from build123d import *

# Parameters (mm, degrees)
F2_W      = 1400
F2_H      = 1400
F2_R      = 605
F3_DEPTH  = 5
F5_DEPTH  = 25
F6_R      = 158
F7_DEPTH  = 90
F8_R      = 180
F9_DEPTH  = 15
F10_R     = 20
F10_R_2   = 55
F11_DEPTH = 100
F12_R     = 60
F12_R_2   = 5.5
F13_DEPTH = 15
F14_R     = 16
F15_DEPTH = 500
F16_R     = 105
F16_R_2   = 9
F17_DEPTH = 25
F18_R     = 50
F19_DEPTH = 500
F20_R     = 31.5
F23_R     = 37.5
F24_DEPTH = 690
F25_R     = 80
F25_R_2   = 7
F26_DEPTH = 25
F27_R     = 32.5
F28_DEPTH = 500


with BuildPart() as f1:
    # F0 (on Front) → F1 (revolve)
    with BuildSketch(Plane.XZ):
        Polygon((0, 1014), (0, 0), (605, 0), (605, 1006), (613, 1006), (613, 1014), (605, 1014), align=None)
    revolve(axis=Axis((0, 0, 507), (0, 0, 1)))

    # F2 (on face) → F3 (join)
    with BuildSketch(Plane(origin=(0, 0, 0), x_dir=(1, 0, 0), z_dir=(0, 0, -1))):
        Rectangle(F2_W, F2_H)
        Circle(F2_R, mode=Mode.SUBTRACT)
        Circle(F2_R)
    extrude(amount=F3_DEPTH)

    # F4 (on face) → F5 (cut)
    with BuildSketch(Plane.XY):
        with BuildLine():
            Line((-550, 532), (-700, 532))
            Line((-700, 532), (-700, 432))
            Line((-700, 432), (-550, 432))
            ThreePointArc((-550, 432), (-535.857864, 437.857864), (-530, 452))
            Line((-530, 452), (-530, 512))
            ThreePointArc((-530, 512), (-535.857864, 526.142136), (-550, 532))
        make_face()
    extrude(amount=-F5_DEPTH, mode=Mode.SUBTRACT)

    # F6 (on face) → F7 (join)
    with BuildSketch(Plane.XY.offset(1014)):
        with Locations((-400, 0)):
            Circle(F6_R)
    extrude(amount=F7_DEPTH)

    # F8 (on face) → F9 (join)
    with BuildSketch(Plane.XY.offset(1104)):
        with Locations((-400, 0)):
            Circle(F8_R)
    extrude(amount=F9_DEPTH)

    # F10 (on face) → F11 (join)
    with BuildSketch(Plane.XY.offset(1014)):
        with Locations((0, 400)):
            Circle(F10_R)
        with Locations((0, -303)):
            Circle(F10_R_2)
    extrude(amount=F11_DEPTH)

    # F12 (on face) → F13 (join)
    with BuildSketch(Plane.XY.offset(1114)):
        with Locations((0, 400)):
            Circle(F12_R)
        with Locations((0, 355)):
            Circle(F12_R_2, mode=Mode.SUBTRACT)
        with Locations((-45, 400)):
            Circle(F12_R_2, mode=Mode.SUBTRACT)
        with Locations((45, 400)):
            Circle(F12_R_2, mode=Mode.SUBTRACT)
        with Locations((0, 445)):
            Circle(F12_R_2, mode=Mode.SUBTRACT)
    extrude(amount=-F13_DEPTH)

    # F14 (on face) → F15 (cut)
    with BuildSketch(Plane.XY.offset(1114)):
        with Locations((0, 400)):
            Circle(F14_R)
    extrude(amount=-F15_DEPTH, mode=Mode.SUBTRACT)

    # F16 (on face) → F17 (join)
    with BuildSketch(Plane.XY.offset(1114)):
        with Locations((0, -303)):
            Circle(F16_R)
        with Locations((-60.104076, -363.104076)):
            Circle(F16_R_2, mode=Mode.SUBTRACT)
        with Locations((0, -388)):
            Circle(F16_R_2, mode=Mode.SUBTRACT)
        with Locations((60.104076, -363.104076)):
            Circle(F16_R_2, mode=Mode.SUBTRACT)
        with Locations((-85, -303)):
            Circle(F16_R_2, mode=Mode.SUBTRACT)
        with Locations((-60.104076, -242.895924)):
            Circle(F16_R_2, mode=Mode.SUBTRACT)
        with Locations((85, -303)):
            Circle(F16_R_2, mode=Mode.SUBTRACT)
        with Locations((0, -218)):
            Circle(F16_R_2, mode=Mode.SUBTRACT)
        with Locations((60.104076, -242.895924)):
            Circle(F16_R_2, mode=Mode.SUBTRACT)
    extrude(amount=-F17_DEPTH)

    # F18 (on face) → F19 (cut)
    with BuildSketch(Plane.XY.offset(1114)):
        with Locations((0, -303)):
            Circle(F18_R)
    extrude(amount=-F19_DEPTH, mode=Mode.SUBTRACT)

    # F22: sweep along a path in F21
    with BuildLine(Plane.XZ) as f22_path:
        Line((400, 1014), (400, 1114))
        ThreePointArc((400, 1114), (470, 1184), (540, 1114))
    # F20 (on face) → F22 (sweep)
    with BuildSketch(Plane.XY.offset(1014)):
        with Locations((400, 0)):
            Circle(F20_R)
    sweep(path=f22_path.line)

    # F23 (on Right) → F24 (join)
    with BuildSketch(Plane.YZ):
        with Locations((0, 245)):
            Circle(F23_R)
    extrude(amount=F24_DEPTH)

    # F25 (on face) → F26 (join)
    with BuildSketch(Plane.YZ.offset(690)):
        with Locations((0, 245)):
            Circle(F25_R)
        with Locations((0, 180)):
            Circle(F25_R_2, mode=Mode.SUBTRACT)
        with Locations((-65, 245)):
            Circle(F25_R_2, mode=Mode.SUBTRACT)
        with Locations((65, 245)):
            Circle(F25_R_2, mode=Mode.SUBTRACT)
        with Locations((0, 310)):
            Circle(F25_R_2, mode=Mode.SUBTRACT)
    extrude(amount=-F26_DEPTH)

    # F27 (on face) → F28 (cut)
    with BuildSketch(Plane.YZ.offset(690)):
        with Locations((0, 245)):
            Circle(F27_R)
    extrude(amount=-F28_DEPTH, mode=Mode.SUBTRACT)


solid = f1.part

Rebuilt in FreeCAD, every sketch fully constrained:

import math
import FreeCAD as App
import Part
import Sketcher

doc = App.newDocument("Part")
body = doc.addObject("PartDesign::Body", "Body")

sketch1 = body.newObject("Sketcher::SketchObject", "Sketch")
sketch1.AttachmentSupport = (doc.getObject("XZ_Plane"), [""])
sketch1.MapMode = "FlatFace"
sketch1.addGeometry([
    Part.LineSegment(App.Vector(0, 1014, 0), App.Vector(0, 0, 0)),
    Part.LineSegment(App.Vector(0, 0, 0), App.Vector(605, 0, 0)),
    Part.LineSegment(App.Vector(605, 0, 0), App.Vector(605, 1006, 0)),
    Part.LineSegment(App.Vector(605, 1006, 0), App.Vector(613, 1006, 0)),
    Part.LineSegment(App.Vector(613, 1006, 0), App.Vector(613, 1014, 0)),
    Part.LineSegment(App.Vector(613, 1014, 0), App.Vector(0, 1014, 0)),
], False)
sketch1.addConstraint([
    Sketcher.Constraint("Coincident", 0, 2, 1, 1),
    Sketcher.Constraint("Coincident", 1, 2, 2, 1),
    Sketcher.Constraint("Coincident", 2, 2, 3, 1),
    Sketcher.Constraint("Coincident", 3, 2, 4, 1),
    Sketcher.Constraint("Coincident", 4, 2, 5, 1),
    Sketcher.Constraint("Coincident", 5, 2, 0, 1),
    Sketcher.Constraint("Vertical", 0),
    Sketcher.Constraint("Horizontal", 1),
    Sketcher.Constraint("Vertical", 2),
    Sketcher.Constraint("Horizontal", 3),
    Sketcher.Constraint("Vertical", 4),
    Sketcher.Constraint("Horizontal", 5),
    Sketcher.Constraint("Coincident", 0, 2, -1, 1),
    Sketcher.Constraint("Equal", 3, 4),
    Sketcher.Constraint("DistanceX", 1, 1, 1, 2, 605.0),
    Sketcher.Constraint("DistanceX", 3, 1, 3, 2, 8.0),
    Sketcher.Constraint("DistanceY", 0, 2, 0, 1, 1014.0),
])
revolution = body.newObject("PartDesign::Revolution", "Revolution")
revolution.Profile = sketch1
revolution.ReferenceAxis = (sketch1, ["V_Axis"])
revolution.Angle = 360

sketch2 = body.newObject("Sketcher::SketchObject", "Sketch001")
sketch2.AttachmentSupport = (doc.getObject("XY_Plane"), [""])
sketch2.MapMode = "FlatFace"
sketch2.addGeometry([
    Part.LineSegment(App.Vector(-700, -700, 0), App.Vector(-700, 700, 0)),
    Part.LineSegment(App.Vector(-700, 700, 0), App.Vector(700, 700, 0)),
    Part.LineSegment(App.Vector(700, 700, 0), App.Vector(700, -700, 0)),
    Part.LineSegment(App.Vector(700, -700, 0), App.Vector(-700, -700, 0)),
], False)
sketch2.addConstraint([
    Sketcher.Constraint("Coincident", 0, 2, 1, 1),
    Sketcher.Constraint("Coincident", 1, 2, 2, 1),
    Sketcher.Constraint("Coincident", 2, 2, 3, 1),
    Sketcher.Constraint("Coincident", 3, 2, 0, 1),
    Sketcher.Constraint("Vertical", 0),
    Sketcher.Constraint("Horizontal", 1),
    Sketcher.Constraint("Vertical", 2),
    Sketcher.Constraint("Horizontal", 3),
    Sketcher.Constraint("Symmetric", 0, 2, 2, 2, -1, 1),
    Sketcher.Constraint("Equal", 3, 0),
    Sketcher.Constraint("DistanceX", 1, 1, 1, 2, 1400.0),
])
pad1 = body.newObject("PartDesign::Pad", "Pad")
pad1.Profile = sketch2
pad1.Length = 5
pad1.Reversed = True

sketch3 = body.newObject("Sketcher::SketchObject", "Sketch002")
sketch3.AttachmentSupport = (doc.getObject("XY_Plane"), [""])
sketch3.MapMode = "FlatFace"
sketch3.addGeometry([
    Part.LineSegment(App.Vector(-550, 532, 0), App.Vector(-700, 532, 0)),
    Part.LineSegment(App.Vector(-700, 532, 0), App.Vector(-700, 432, 0)),
    Part.LineSegment(App.Vector(-700, 432, 0), App.Vector(-550, 432, 0)),
    Part.ArcOfCircle(Part.Circle(App.Vector(-550, 452, 0), App.Vector(0, 0, 1), 20), math.radians(-90), math.radians(0)),
    Part.LineSegment(App.Vector(-530, 452, 0), App.Vector(-530, 512, 0)),
    Part.ArcOfCircle(Part.Circle(App.Vector(-550, 512, 0), App.Vector(0, 0, 1), 20), math.radians(0), math.radians(90)),
], False)
sketch3.addConstraint([
    Sketcher.Constraint("Coincident", 0, 2, 1, 1),
    Sketcher.Constraint("Coincident", 1, 2, 2, 1),
    Sketcher.Constraint("Tangent", 2, 2, 3, 1),
    Sketcher.Constraint("Tangent", 3, 2, 4, 1),
    Sketcher.Constraint("Tangent", 4, 2, 5, 1),
    Sketcher.Constraint("Tangent", 5, 2, 0, 1),
    Sketcher.Constraint("Horizontal", 0),
    Sketcher.Constraint("Vertical", 1),
    Sketcher.Constraint("Horizontal", 2),
    Sketcher.Constraint("Vertical", 4),
    Sketcher.Constraint("Equal", 3, 5),
    Sketcher.Constraint("Radius", 3, 19.999999),
    Sketcher.Constraint("DistanceX", 0, 2, 0, 1, 150.0),
    Sketcher.Constraint("DistanceY", 1, 2, 1, 1, 100.0),
    Sketcher.Constraint("DistanceX", 3, 3, -1, 1, 549.999999),
    Sketcher.Constraint("DistanceY", -1, 1, 3, 3, 451.999999),
])
pocket1 = body.newObject("PartDesign::Pocket", "Pocket")
pocket1.Profile = sketch3
pocket1.Length = 25

sketch4 = body.newObject("Sketcher::SketchObject", "Sketch003")
sketch4.AttachmentSupport = (doc.getObject("XY_Plane"), [""])
sketch4.MapMode = "FlatFace"
sketch4.AttachmentOffset = App.Placement(App.Vector(0, 0, 1014), App.Rotation())
sketch4.addGeometry(Part.Circle(App.Vector(-400, 0, 0), App.Vector(0, 0, 1), 158), False)
sketch4.addConstraint([
    Sketcher.Constraint("PointOnObject", 0, 3, -1),
    Sketcher.Constraint("Diameter", 0, 316.0),
    Sketcher.Constraint("DistanceX", 0, 3, -1, 1, 400.0),
])
pad2 = body.newObject("PartDesign::Pad", "Pad001")
pad2.Profile = sketch4
pad2.Length = 90

sketch5 = body.newObject("Sketcher::SketchObject", "Sketch004")
sketch5.AttachmentSupport = (doc.getObject("XY_Plane"), [""])
sketch5.MapMode = "FlatFace"
sketch5.AttachmentOffset = App.Placement(App.Vector(0, 0, 1104), App.Rotation())
sketch5.addGeometry(Part.Circle(App.Vector(-400, 0, 0), App.Vector(0, 0, 1), 180), False)
sketch5.addConstraint([
    Sketcher.Constraint("PointOnObject", 0, 3, -1),
    Sketcher.Constraint("Diameter", 0, 360.0),
    Sketcher.Constraint("DistanceX", 0, 3, -1, 1, 400.0),
])
pad3 = body.newObject("PartDesign::Pad", "Pad002")
pad3.Profile = sketch5
pad3.Length = 15

sketch6 = body.newObject("Sketcher::SketchObject", "Sketch005")
sketch6.AttachmentSupport = (doc.getObject("XY_Plane"), [""])
sketch6.MapMode = "FlatFace"
sketch6.AttachmentOffset = App.Placement(App.Vector(0, 0, 1014), App.Rotation())
sketch6.addGeometry([
    Part.Circle(App.Vector(0, 400, 0), App.Vector(0, 0, 1), 20),
    Part.Circle(App.Vector(0, -303, 0), App.Vector(0, 0, 1), 55),
], False)
sketch6.addConstraint([
    Sketcher.Constraint("PointOnObject", 0, 3, -2),
    Sketcher.Constraint("PointOnObject", 1, 3, -2),
    Sketcher.Constraint("Diameter", 0, 40.0),
    Sketcher.Constraint("Diameter", 1, 110.0),
    Sketcher.Constraint("DistanceY", -1, 1, 0, 3, 400.0),
    Sketcher.Constraint("DistanceY", 1, 3, -1, 1, 303.0),
])
pad4 = body.newObject("PartDesign::Pad", "Pad003")
pad4.Profile = sketch6
pad4.Length = 100

sketch7 = body.newObject("Sketcher::SketchObject", "Sketch006")
sketch7.AttachmentSupport = (doc.getObject("XY_Plane"), [""])
sketch7.MapMode = "FlatFace"
sketch7.AttachmentOffset = App.Placement(App.Vector(0, 0, 1114), App.Rotation())
sketch7.addGeometry([
    Part.Circle(App.Vector(0, 400, 0), App.Vector(0, 0, 1), 60),
    Part.Circle(App.Vector(0, 355, 0), App.Vector(0, 0, 1), 6),
    Part.Circle(App.Vector(-45, 400, 0), App.Vector(0, 0, 1), 6),
    Part.Circle(App.Vector(45, 400, 0), App.Vector(0, 0, 1), 6),
    Part.Circle(App.Vector(0, 445, 0), App.Vector(0, 0, 1), 6),
], False)
sketch7.addConstraint([
    Sketcher.Constraint("Equal", 1, 2),
    Sketcher.Constraint("Equal", 2, 3),
    Sketcher.Constraint("Equal", 3, 4),
    Sketcher.Constraint("Symmetric", 2, 3, 3, 3, -2),
    Sketcher.Constraint("PointOnObject", 0, 3, -2),
    Sketcher.Constraint("PointOnObject", 1, 3, -2),
    Sketcher.Constraint("PointOnObject", 4, 3, -2),
    Sketcher.Constraint("Horizontal", 0, 3, 2, 3),
    Sketcher.Constraint("Diameter", 0, 120.0),
    Sketcher.Constraint("Diameter", 1, 11.0),
    Sketcher.Constraint("DistanceY", -1, 1, 0, 3, 400.0),
    Sketcher.Constraint("DistanceY", -1, 1, 1, 3, 355.0),
    Sketcher.Constraint("DistanceX", 2, 3, -1, 1, 45.0),
    Sketcher.Constraint("DistanceY", -1, 1, 4, 3, 445.0),
])
pad5 = body.newObject("PartDesign::Pad", "Pad004")
pad5.Profile = sketch7
pad5.Length = 15
pad5.Reversed = True

sketch8 = body.newObject("Sketcher::SketchObject", "Sketch007")
sketch8.AttachmentSupport = (doc.getObject("XY_Plane"), [""])
sketch8.MapMode = "FlatFace"
sketch8.AttachmentOffset = App.Placement(App.Vector(0, 0, 1114), App.Rotation())
sketch8.addGeometry(Part.Circle(App.Vector(0, 400, 0), App.Vector(0, 0, 1), 16), False)
sketch8.addConstraint([
    Sketcher.Constraint("PointOnObject", 0, 3, -2),
    Sketcher.Constraint("Diameter", 0, 32.0),
    Sketcher.Constraint("DistanceY", -1, 1, 0, 3, 400.0),
])
pocket2 = body.newObject("PartDesign::Pocket", "Pocket001")
pocket2.Profile = sketch8
pocket2.Length = 500

sketch9 = body.newObject("Sketcher::SketchObject", "Sketch008")
sketch9.AttachmentSupport = (doc.getObject("XY_Plane"), [""])
sketch9.MapMode = "FlatFace"
sketch9.AttachmentOffset = App.Placement(App.Vector(0, 0, 1114), App.Rotation())
sketch9.addGeometry([
    Part.Circle(App.Vector(0, -303, 0), App.Vector(0, 0, 1), 105),
    Part.Circle(App.Vector(-60, -363, 0), App.Vector(0, 0, 1), 9),
    Part.Circle(App.Vector(0, -388, 0), App.Vector(0, 0, 1), 9),
    Part.Circle(App.Vector(60, -363, 0), App.Vector(0, 0, 1), 9),
    Part.Circle(App.Vector(-85, -303, 0), App.Vector(0, 0, 1), 9),
    Part.Circle(App.Vector(-60, -243, 0), App.Vector(0, 0, 1), 9),
    Part.Circle(App.Vector(85, -303, 0), App.Vector(0, 0, 1), 9),
    Part.Circle(App.Vector(0, -218, 0), App.Vector(0, 0, 1), 9),
    Part.Circle(App.Vector(60, -243, 0), App.Vector(0, 0, 1), 9),
], False)
sketch9.addConstraint([
    Sketcher.Constraint("Equal", 1, 2),
    Sketcher.Constraint("Equal", 2, 3),
    Sketcher.Constraint("Equal", 3, 4),
    Sketcher.Constraint("Equal", 4, 5),
    Sketcher.Constraint("Equal", 5, 6),
    Sketcher.Constraint("Equal", 6, 7),
    Sketcher.Constraint("Equal", 7, 8),
    Sketcher.Constraint("Symmetric", 1, 3, 3, 3, -2),
    Sketcher.Constraint("Symmetric", 4, 3, 6, 3, -2),
    Sketcher.Constraint("Symmetric", 5, 3, 8, 3, -2),
    Sketcher.Constraint("PointOnObject", 0, 3, -2),
    Sketcher.Constraint("PointOnObject", 2, 3, -2),
    Sketcher.Constraint("PointOnObject", 7, 3, -2),
    Sketcher.Constraint("Horizontal", 0, 3, 4, 3),
    Sketcher.Constraint("Vertical", 1, 3, 5, 3),
    Sketcher.Constraint("Diameter", 0, 210.0),
    Sketcher.Constraint("Diameter", 1, 18.0),
    Sketcher.Constraint("DistanceY", 0, 3, -1, 1, 303.0),
    Sketcher.Constraint("DistanceY", 2, 3, -1, 1, 388.0),
    Sketcher.Constraint("DistanceX", 4, 3, -1, 1, 85.0),
    Sketcher.Constraint("DistanceY", 7, 3, -1, 1, 218.0),
    Sketcher.Constraint("DistanceX", 1, 3, 3, 3, 120.208152),
    Sketcher.Constraint("DistanceY", 1, 3, -1, 1, 363.104076),
    Sketcher.Constraint("DistanceY", 5, 3, -1, 1, 242.895924),
])
pad6 = body.newObject("PartDesign::Pad", "Pad005")
pad6.Profile = sketch9
pad6.Length = 25
pad6.Reversed = True

sketch10 = body.newObject("Sketcher::SketchObject", "Sketch009")
sketch10.AttachmentSupport = (doc.getObject("XY_Plane"), [""])
sketch10.MapMode = "FlatFace"
sketch10.AttachmentOffset = App.Placement(App.Vector(0, 0, 1114), App.Rotation())
sketch10.addGeometry(Part.Circle(App.Vector(0, -303, 0), App.Vector(0, 0, 1), 50), False)
sketch10.addConstraint([
    Sketcher.Constraint("PointOnObject", 0, 3, -2),
    Sketcher.Constraint("Diameter", 0, 100.0),
    Sketcher.Constraint("DistanceY", 0, 3, -1, 1, 303.0),
])
pocket3 = body.newObject("PartDesign::Pocket", "Pocket002")
pocket3.Profile = sketch10
pocket3.Length = 500

sketch11 = body.newObject("Sketcher::SketchObject", "Sketch010")
sketch11.AttachmentSupport = (doc.getObject("XY_Plane"), [""])
sketch11.MapMode = "FlatFace"
sketch11.AttachmentOffset = App.Placement(App.Vector(0, 0, 1014), App.Rotation())
sketch11.addGeometry(Part.Circle(App.Vector(400, 0, 0), App.Vector(0, 0, 1), 32), False)
sketch11.addConstraint([
    Sketcher.Constraint("PointOnObject", 0, 3, -1),
    Sketcher.Constraint("Diameter", 0, 63.0),
    Sketcher.Constraint("DistanceX", -1, 1, 0, 3, 400.0),
])

sketch12 = body.newObject("Sketcher::SketchObject", "Sketch011")
sketch12.AttachmentSupport = (doc.getObject("XZ_Plane"), [""])
sketch12.MapMode = "FlatFace"
sketch12.addGeometry([
    Part.LineSegment(App.Vector(400, 1014, 0), App.Vector(400, 1114, 0)),
    Part.ArcOfCircle(Part.Circle(App.Vector(470, 1114, 0), App.Vector(0, 0, 1), 70), math.radians(0), math.radians(180)),
], False)
sketch12.addConstraint([
    Sketcher.Constraint("Tangent", 0, 2, 1, 2),
    Sketcher.Constraint("Vertical", 0),
    Sketcher.Constraint("Horizontal", 0, 2, 1, 1),
    Sketcher.Constraint("Radius", 1, 70.0),
    Sketcher.Constraint("DistanceY", 0, 1, 0, 2, 100.0),
    Sketcher.Constraint("DistanceX", -1, 1, 1, 3, 470.0),
    Sketcher.Constraint("DistanceY", -1, 1, 1, 3, 1114.0),
])
doc.recompute()

additivepipe = body.newObject("PartDesign::AdditivePipe", "AdditivePipe")
additivepipe.Profile = sketch11
additivepipe.Spine = (sketch12, ["Edge1", "Edge2"])

sketch13 = body.newObject("Sketcher::SketchObject", "Sketch012")
sketch13.AttachmentSupport = (doc.getObject("YZ_Plane"), [""])
sketch13.MapMode = "FlatFace"
sketch13.addGeometry(Part.Circle(App.Vector(0, 245, 0), App.Vector(0, 0, 1), 38), False)
sketch13.addConstraint([
    Sketcher.Constraint("PointOnObject", 0, 3, -2),
    Sketcher.Constraint("Diameter", 0, 75.0),
    Sketcher.Constraint("DistanceY", -1, 1, 0, 3, 245.0),
])
pad7 = body.newObject("PartDesign::Pad", "Pad006")
pad7.Profile = sketch13
pad7.Length = 690

sketch14 = body.newObject("Sketcher::SketchObject", "Sketch013")
sketch14.AttachmentSupport = (doc.getObject("YZ_Plane"), [""])
sketch14.MapMode = "FlatFace"
sketch14.AttachmentOffset = App.Placement(App.Vector(0, 0, 690), App.Rotation())
sketch14.addGeometry([
    Part.Circle(App.Vector(0, 245, 0), App.Vector(0, 0, 1), 80),
    Part.Circle(App.Vector(0, 180, 0), App.Vector(0, 0, 1), 7),
    Part.Circle(App.Vector(-65, 245, 0), App.Vector(0, 0, 1), 7),
    Part.Circle(App.Vector(65, 245, 0), App.Vector(0, 0, 1), 7),
    Part.Circle(App.Vector(0, 310, 0), App.Vector(0, 0, 1), 7),
], False)
sketch14.addConstraint([
    Sketcher.Constraint("Equal", 1, 2),
    Sketcher.Constraint("Equal", 2, 3),
    Sketcher.Constraint("Equal", 3, 4),
    Sketcher.Constraint("Symmetric", 2, 3, 3, 3, -2),
    Sketcher.Constraint("PointOnObject", 0, 3, -2),
    Sketcher.Constraint("PointOnObject", 1, 3, -2),
    Sketcher.Constraint("PointOnObject", 4, 3, -2),
    Sketcher.Constraint("Horizontal", 0, 3, 2, 3),
    Sketcher.Constraint("Diameter", 0, 160.0),
    Sketcher.Constraint("Diameter", 1, 14.0),
    Sketcher.Constraint("DistanceY", -1, 1, 0, 3, 245.0),
    Sketcher.Constraint("DistanceY", -1, 1, 1, 3, 180.0),
    Sketcher.Constraint("DistanceX", 2, 3, -1, 1, 65.0),
    Sketcher.Constraint("DistanceY", -1, 1, 4, 3, 310.0),
])
pad8 = body.newObject("PartDesign::Pad", "Pad007")
pad8.Profile = sketch14
pad8.Length = 25
pad8.Reversed = True

sketch15 = body.newObject("Sketcher::SketchObject", "Sketch014")
sketch15.AttachmentSupport = (doc.getObject("YZ_Plane"), [""])
sketch15.MapMode = "FlatFace"
sketch15.AttachmentOffset = App.Placement(App.Vector(0, 0, 690), App.Rotation())
sketch15.addGeometry(Part.Circle(App.Vector(0, 245, 0), App.Vector(0, 0, 1), 32), False)
sketch15.addConstraint([
    Sketcher.Constraint("PointOnObject", 0, 3, -2),
    Sketcher.Constraint("Diameter", 0, 65.0),
    Sketcher.Constraint("DistanceY", -1, 1, 0, 3, 245.0),
])
pocket4 = body.newObject("PartDesign::Pocket", "Pocket003")
pocket4.Profile = sketch15
pocket4.Length = 500

doc.recompute()
